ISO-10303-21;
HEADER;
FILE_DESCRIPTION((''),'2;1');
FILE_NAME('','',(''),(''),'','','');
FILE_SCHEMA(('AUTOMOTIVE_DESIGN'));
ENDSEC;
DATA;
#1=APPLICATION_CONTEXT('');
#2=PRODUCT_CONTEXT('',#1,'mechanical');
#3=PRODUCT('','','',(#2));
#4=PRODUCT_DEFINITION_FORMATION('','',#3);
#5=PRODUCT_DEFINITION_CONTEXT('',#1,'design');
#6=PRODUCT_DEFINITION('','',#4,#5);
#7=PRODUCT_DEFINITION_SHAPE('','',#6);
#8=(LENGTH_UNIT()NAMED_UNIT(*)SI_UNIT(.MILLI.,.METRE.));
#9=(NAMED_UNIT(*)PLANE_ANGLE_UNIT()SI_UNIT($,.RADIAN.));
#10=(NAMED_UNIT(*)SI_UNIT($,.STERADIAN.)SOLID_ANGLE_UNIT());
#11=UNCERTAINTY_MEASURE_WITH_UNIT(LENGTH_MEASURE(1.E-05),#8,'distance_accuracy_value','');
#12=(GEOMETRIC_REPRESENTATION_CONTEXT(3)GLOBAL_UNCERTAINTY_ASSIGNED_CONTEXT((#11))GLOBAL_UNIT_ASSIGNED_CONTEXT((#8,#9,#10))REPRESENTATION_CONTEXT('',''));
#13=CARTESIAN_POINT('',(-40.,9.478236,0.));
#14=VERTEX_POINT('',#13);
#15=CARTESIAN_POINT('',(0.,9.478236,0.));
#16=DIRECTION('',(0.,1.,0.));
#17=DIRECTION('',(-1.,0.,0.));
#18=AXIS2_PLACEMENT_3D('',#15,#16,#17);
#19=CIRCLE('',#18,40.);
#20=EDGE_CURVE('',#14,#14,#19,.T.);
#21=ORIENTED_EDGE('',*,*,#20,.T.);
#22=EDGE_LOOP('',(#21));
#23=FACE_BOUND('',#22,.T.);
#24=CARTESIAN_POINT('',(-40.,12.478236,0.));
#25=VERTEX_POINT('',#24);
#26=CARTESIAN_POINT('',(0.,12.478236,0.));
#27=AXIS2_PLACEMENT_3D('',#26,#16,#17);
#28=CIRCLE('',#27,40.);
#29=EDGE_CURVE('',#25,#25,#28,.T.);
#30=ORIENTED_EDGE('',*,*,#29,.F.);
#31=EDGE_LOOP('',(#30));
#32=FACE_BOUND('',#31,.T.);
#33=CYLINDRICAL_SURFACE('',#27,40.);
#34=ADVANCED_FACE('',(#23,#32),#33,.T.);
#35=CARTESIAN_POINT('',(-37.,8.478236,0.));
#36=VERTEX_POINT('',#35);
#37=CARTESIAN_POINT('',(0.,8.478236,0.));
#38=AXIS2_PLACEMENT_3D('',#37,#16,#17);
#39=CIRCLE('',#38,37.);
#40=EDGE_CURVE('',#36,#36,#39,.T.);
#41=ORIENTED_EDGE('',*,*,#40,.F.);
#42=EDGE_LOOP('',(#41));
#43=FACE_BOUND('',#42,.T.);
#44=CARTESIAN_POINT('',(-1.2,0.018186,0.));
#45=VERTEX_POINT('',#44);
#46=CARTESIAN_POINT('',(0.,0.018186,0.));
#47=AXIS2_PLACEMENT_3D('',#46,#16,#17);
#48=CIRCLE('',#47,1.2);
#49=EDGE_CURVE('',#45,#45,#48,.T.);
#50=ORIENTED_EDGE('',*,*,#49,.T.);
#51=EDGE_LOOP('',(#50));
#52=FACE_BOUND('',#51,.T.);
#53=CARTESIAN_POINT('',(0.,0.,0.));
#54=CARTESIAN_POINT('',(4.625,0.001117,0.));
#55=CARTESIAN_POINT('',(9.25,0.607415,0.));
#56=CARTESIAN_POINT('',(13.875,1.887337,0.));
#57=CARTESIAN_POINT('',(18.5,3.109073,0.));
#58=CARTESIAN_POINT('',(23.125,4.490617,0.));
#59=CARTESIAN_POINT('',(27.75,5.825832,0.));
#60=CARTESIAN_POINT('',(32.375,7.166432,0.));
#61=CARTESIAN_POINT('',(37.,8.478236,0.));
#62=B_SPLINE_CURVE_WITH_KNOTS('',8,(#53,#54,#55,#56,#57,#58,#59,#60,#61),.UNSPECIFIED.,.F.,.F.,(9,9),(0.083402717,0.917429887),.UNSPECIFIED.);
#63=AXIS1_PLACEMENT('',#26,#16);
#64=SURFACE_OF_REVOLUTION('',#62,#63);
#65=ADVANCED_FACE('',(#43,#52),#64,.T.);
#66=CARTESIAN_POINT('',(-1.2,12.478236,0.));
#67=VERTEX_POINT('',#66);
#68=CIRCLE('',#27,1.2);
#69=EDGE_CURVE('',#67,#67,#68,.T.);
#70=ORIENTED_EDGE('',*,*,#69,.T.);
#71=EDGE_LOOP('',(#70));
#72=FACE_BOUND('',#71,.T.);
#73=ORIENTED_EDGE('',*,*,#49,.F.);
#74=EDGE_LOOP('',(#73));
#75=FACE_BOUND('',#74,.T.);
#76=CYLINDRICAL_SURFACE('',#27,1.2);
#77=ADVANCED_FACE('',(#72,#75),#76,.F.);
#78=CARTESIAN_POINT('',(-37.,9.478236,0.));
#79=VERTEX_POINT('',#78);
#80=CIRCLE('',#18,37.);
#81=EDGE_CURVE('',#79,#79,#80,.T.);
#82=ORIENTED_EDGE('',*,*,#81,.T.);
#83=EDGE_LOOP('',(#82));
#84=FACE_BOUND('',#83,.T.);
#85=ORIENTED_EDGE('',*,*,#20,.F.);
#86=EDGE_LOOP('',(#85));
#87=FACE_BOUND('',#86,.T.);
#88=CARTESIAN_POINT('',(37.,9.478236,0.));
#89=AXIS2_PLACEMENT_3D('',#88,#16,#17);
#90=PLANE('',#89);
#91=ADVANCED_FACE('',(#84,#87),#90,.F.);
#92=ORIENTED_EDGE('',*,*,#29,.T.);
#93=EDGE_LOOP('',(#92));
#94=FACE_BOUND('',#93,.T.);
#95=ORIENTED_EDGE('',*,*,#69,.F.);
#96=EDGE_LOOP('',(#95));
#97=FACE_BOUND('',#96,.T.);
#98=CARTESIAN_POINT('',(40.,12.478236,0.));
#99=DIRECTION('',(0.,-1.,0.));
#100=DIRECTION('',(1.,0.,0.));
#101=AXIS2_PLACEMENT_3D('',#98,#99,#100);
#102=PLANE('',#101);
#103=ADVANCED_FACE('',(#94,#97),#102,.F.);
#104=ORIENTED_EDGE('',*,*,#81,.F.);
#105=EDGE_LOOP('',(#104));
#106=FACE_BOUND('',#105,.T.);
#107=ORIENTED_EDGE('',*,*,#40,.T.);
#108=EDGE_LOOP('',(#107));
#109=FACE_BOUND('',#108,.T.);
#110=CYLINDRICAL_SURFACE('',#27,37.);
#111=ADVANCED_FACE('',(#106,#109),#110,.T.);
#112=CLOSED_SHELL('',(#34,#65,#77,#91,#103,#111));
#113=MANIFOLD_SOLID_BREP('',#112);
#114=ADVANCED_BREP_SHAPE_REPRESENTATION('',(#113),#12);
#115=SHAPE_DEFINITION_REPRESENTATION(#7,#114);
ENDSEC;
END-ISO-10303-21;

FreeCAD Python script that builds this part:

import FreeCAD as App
import Part
import Sketcher

V = App.Vector
Q = App.Units.Quantity

doc = App.newDocument("Part")
body = doc.addObject("PartDesign::Body", "Body")

sketch1 = body.newObject("Sketcher::SketchObject", "Sketch")
sketch1.AttachmentSupport = (doc.getObject("XY_Plane"), [""])
sketch1.MapMode = "FlatFace"
sketch1.addGeometry(Part.LineSegment(V(1.2, 12.478236, 0), V(1.2, 7.478236, 0)), False)
sketch1.addGeometry(Part.LineSegment(V(1.2, 7.478236, 0), V(0, 7.478236, 0)), False)
sketch1.addGeometry(Part.LineSegment(V(0, 7.478236, 0), V(0, 0, 0)), False)
sketch1.addGeometry(Part.BSplineCurve([V(0, 0, 0), V(4.625, 0.001117, 0), V(9.25, 0.607415, 0), V(13.875, 1.887337, 0), V(18.5, 3.109073, 0), V(23.125, 4.490617, 0), V(27.75, 5.825832, 0), V(32.375, 7.166432, 0), V(37, 8.478236, 0)], [9, 9], [0.083402717, 0.917429887], False, 8, [1, 1, 1, 1, 1, 1, 1, 1, 1], False), False)
sketch1.addGeometry(Part.LineSegment(V(37, 8.478236, 0), V(37, 9.478236, 0)), False)
sketch1.addGeometry(Part.LineSegment(V(37, 9.478236, 0), V(40, 9.478236, 0)), False)
sketch1.addGeometry(Part.LineSegment(V(40, 9.478236, 0), V(40, 12.478236, 0)), False)
sketch1.addGeometry(Part.LineSegment(V(40, 12.478236, 0), V(1.2, 12.478236, 0)), False)
sketch1.addConstraint(Sketcher.Constraint("Block", 3))
sketch1.addConstraint(Sketcher.Constraint("Coincident", 0, 2, 1, 1))
sketch1.addConstraint(Sketcher.Constraint("Coincident", 1, 2, 2, 1))
sketch1.addConstraint(Sketcher.Constraint("Coincident", 2, 2, 3, 1))
sketch1.addConstraint(Sketcher.Constraint("Coincident", 3, 2, 4, 1))
sketch1.addConstraint(Sketcher.Constraint("Coincident", 4, 2, 5, 1))
sketch1.addConstraint(Sketcher.Constraint("Coincident", 5, 2, 6, 1))
sketch1.addConstraint(Sketcher.Constraint("Coincident", 6, 2, 7, 1))
sketch1.addConstraint(Sketcher.Constraint("Coincident", 7, 2, 0, 1))
sketch1.addConstraint(Sketcher.Constraint("Vertical", 0))
sketch1.addConstraint(Sketcher.Constraint("Horizontal", 1))
sketch1.addConstraint(Sketcher.Constraint("Vertical", 2))
sketch1.addConstraint(Sketcher.Constraint("Vertical", 4))
sketch1.addConstraint(Sketcher.Constraint("Horizontal", 5))
sketch1.addConstraint(Sketcher.Constraint("Vertical", 6))
sketch1.addConstraint(Sketcher.Constraint("Horizontal", 7))
sketch1.addConstraint(Sketcher.Constraint("Equal", 5, 6))
sketch1.addConstraint(Sketcher.Constraint("DistanceX", 5, 1, 5, 2, Q("3 mm")))
sketch1.addConstraint(Sketcher.Constraint("DistanceY", 0, 2, 0, 1, Q("5 mm")))
sketch1.addConstraint(Sketcher.Constraint("DistanceY", 4, 1, 4, 2, Q("1 mm")))
sketch1.addConstraint(Sketcher.Constraint("DistanceX", 1, 2, 1, 1, Q("1.2 mm")))
revolution = body.newObject("PartDesign::Revolution", "Revolution")
revolution.Profile = sketch1
revolution.ReferenceAxis = (sketch1, ["V_Axis"])
revolution.Angle = 360

sketch2 = body.newObject("Sketcher::SketchObject", "Sketch001")
sketch2.AttachmentSupport = (doc.getObject("XZ_Plane"), [""])
sketch2.MapMode = "FlatFace"
sketch2.AttachmentOffset = App.Placement(V(0, 0, -12.478236), App.Rotation())
sketch2.addGeometry(Part.Circle(V(0, 0, 0), V(0, 0, 1), 1.2), False)
sketch2.addConstraint(Sketcher.Constraint("Coincident", 0, 3, -1, 1))
sketch2.addConstraint(Sketcher.Constraint("Diameter", 0, Q("2.4 mm")))
pocket1 = body.newObject("PartDesign::Pocket", "Pocket")
pocket1.Profile = sketch2
pocket1.Type = "ThroughAll"
pocket1.Reversed = True

doc.recompute()
